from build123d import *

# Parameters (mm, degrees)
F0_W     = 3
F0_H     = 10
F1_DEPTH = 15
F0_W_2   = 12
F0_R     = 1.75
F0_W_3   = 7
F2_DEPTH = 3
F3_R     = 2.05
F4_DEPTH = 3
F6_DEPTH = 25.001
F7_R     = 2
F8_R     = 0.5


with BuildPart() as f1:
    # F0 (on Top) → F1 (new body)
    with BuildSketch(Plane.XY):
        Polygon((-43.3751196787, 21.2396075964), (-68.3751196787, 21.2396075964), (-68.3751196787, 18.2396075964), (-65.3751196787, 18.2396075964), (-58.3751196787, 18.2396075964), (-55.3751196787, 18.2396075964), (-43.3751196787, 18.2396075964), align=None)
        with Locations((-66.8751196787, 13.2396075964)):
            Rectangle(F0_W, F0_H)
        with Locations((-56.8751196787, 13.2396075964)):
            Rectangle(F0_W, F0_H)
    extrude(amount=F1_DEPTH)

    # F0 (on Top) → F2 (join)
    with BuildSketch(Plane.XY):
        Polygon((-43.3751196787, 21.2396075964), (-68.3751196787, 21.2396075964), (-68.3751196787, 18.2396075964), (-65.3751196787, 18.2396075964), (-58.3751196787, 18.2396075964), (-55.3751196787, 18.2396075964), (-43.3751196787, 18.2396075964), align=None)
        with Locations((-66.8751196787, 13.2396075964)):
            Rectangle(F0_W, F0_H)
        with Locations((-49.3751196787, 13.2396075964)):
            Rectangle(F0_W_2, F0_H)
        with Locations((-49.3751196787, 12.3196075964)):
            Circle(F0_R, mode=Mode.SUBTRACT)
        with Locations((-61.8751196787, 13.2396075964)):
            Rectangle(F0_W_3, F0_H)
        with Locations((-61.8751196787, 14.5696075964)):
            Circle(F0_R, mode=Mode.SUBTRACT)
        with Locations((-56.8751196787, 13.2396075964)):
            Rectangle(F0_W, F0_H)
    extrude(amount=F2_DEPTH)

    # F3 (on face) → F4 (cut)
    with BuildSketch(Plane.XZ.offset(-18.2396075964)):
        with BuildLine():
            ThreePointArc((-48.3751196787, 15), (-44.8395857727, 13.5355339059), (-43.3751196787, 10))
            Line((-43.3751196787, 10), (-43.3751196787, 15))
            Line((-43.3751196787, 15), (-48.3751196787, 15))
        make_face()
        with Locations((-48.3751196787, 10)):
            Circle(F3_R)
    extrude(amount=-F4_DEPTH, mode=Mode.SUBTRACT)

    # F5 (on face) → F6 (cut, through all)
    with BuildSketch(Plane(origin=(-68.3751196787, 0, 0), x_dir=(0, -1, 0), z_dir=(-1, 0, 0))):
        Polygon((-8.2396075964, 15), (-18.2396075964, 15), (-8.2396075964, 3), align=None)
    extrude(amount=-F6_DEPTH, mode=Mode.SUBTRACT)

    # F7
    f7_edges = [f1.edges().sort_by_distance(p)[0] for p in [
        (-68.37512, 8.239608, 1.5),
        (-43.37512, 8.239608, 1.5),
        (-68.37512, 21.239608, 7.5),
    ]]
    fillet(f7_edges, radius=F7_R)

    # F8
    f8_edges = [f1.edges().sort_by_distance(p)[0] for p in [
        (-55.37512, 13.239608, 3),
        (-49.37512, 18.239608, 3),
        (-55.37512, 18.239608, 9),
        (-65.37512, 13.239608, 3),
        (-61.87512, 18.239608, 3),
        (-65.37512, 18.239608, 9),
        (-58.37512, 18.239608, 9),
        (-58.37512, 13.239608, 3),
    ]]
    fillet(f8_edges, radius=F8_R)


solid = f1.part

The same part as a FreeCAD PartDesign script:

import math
import FreeCAD as App
import Part
import Sketcher


def edges_at(feature, points):
    """Names of the edges that pass closest to the given points."""
    edges = feature.Shape.Edges
    near = lambda p: min(range(len(edges)), key=lambda i: edges[i].distToShape(Part.Vertex(*p))[0])
    return sorted({f"Edge{near(p) + 1}" for p in points})

doc = App.newDocument("Part")
body = doc.addObject("PartDesign::Body", "Body")

# Sketch on XY plane
sketch1 = body.newObject("Sketcher::SketchObject", "Sketch")
sketch1.AttachmentSupport = (doc.getObject("XY_Plane"), [""])
sketch1.MapMode = "FlatFace"
sketch1.addGeometry([
    Part.LineSegment(App.Vector(-43.4, 21.2, 0), App.Vector(-68.4, 21.2, 0)),  # 0
    Part.LineSegment(App.Vector(-68.4, 21.2, 0), App.Vector(-68.4, 8.2, 0)),  # 1
    Part.LineSegment(App.Vector(-68.4, 8.2, 0), App.Vector(-65.4, 8.2, 0)),  # 2
    Part.LineSegment(App.Vector(-65.4, 8.2, 0), App.Vector(-65.4, 18.2, 0)),  # 3
    Part.LineSegment(App.Vector(-65.4, 18.2, 0), App.Vector(-58.4, 18.2, 0)),  # 4
    Part.LineSegment(App.Vector(-58.4, 18.2, 0), App.Vector(-58.4, 8.2, 0)),  # 5
    Part.LineSegment(App.Vector(-58.4, 8.2, 0), App.Vector(-55.4, 8.2, 0)),  # 6
    Part.LineSegment(App.Vector(-55.4, 8.2, 0), App.Vector(-55.4, 18.2, 0)),  # 7
    Part.LineSegment(App.Vector(-55.4, 18.2, 0), App.Vector(-43.4, 18.2, 0)),  # 8
    Part.LineSegment(App.Vector(-43.4, 18.2, 0), App.Vector(-43.4, 21.2, 0)),  # 9
], False)
sketch1.addConstraint([
    Sketcher.Constraint("Coincident", 0, 2, 1, 1),
    Sketcher.Constraint("Coincident", 1, 2, 2, 1),
    Sketcher.Constraint("Coincident", 2, 2, 3, 1),
    Sketcher.Constraint("Coincident", 3, 2, 4, 1),
    Sketcher.Constraint("Coincident", 4, 2, 5, 1),
    Sketcher.Constraint("Coincident", 5, 2, 6, 1),
    Sketcher.Constraint("Coincident", 6, 2, 7, 1),
    Sketcher.Constraint("Coincident", 7, 2, 8, 1),
    Sketcher.Constraint("Coincident", 8, 2, 9, 1),
    Sketcher.Constraint("Coincident", 9, 2, 0, 1),
    Sketcher.Constraint("Horizontal", 0),
    Sketcher.Constraint("Vertical", 1),
    Sketcher.Constraint("Horizontal", 2),
    Sketcher.Constraint("Vertical", 3),
    Sketcher.Constraint("Horizontal", 4),
    Sketcher.Constraint("Vertical", 5),
    Sketcher.Constraint("Horizontal", 6),
    Sketcher.Constraint("Vertical", 7),
    Sketcher.Constraint("Horizontal", 8),
    Sketcher.Constraint("Vertical", 9),
    Sketcher.Constraint("Horizontal", 2, 2, 5, 2),
    Sketcher.Constraint("Horizontal", 4, 2, 7, 2),
    Sketcher.Constraint("Equal", 2, 6),
    Sketcher.Constraint("Equal", 6, 9),
    Sketcher.Constraint("DistanceX", 0, 2, 0, 1, 25.0),
    Sketcher.Constraint("DistanceX", 2, 1, 2, 2, 3.0),
    Sketcher.Constraint("DistanceX", 4, 1, 4, 2, 7.0),
    Sketcher.Constraint("DistanceY", 1, 2, 1, 1, 13.0),
    Sketcher.Constraint("DistanceX", 0, 2, -1, 1, 68.37512),
    Sketcher.Constraint("DistanceY", -1, 1, 0, 2, 21.239608),
])
pad1 = body.newObject("PartDesign::Pad", "Pad")
pad1.Profile = sketch1
pad1.Length = 15

# Sketch on XY plane
sketch2 = body.newObject("Sketcher::SketchObject", "Sketch001")
sketch2.AttachmentSupport = (doc.getObject("XY_Plane"), [""])
sketch2.MapMode = "FlatFace"
sketch2.addGeometry([
    Part.LineSegment(App.Vector(-43.4, 21.2, 0), App.Vector(-68.4, 21.2, 0)),  # 0
    Part.LineSegment(App.Vector(-68.4, 21.2, 0), App.Vector(-68.4, 8.2, 0)),  # 1
    Part.LineSegment(App.Vector(-68.4, 8.2, 0), App.Vector(-43.4, 8.2, 0)),  # 2
    Part.LineSegment(App.Vector(-43.4, 8.2, 0), App.Vector(-43.4, 21.2, 0)),  # 3
    Part.Circle(App.Vector(-49.4, 12.3, 0), App.Vector(0, 0, 1), 1.8),  # 4
    Part.Circle(App.Vector(-61.9, 14.6, 0), App.Vector(0, 0, 1), 1.8),  # 5
], False)
sketch2.addConstraint([
    Sketcher.Constraint("Coincident", 0, 2, 1, 1),
    Sketcher.Constraint("Coincident", 1, 2, 2, 1),
    Sketcher.Constraint("Coincident", 2, 2, 3, 1),
    Sketcher.Constraint("Coincident", 3, 2, 0, 1),
    Sketcher.Constraint("Horizontal", 0),
    Sketcher.Constraint("Vertical", 1),
    Sketcher.Constraint("Horizontal", 2),
    Sketcher.Constraint("Vertical", 3),
    Sketcher.Constraint("Equal", 4, 5),
    Sketcher.Constraint("Diameter", 4, 3.5),
    Sketcher.Constraint("DistanceX", 0, 2, 0, 1, 25.0),
    Sketcher.Constraint("DistanceY", 1, 2, 1, 1, 13.0),
    Sketcher.Constraint("DistanceX", 0, 2, 4, 3, 19.0),
    Sketcher.Constraint("DistanceX", 5, 3, 4, 3, 12.5),
    Sketcher.Constraint("DistanceY", 4, 3, 5, 3, 2.25),
    Sketcher.Constraint("DistanceY", 5, 3, 0, 2, 6.67),
    Sketcher.Constraint("DistanceX", 4, 3, -1, 1, 49.37512),
    Sketcher.Constraint("DistanceY", -1, 1, 4, 3, 12.319608),
])
pad2 = body.newObject("PartDesign::Pad", "Pad001")
pad2.Profile = sketch2
pad2.Length = 3

# Sketch on XZ plane
sketch3 = body.newObject("Sketcher::SketchObject", "Sketch002")
sketch3.AttachmentSupport = (doc.getObject("XZ_Plane"), [""])
sketch3.MapMode = "FlatFace"
sketch3.AttachmentOffset = App.Placement(App.Vector(0, 0, -18.239608), App.Rotation())
sketch3.addGeometry([
    Part.ArcOfCircle(Part.Circle(App.Vector(-48.4, 10, 0), App.Vector(0, 0, 1), 5), math.radians(0), math.radians(90)),
    Part.LineSegment(App.Vector(-43.4, 10, 0), App.Vector(-43.4, 15, 0)),
    Part.LineSegment(App.Vector(-43.4, 15, 0), App.Vector(-48.4, 15, 0)),
    Part.Circle(App.Vector(-48.4, 10, 0), App.Vector(0, 0, 1), 2),
], False)
sketch3.addConstraint([
    Sketcher.Constraint("Tangent", 0, 1, 1, 1),
    Sketcher.Constraint("Coincident", 1, 2, 2, 1),
    Sketcher.Constraint("Tangent", 2, 2, 0, 2),
    Sketcher.Constraint("Vertical", 1),
    Sketcher.Constraint("Horizontal", 2),
    Sketcher.Constraint("Coincident", 3, 3, 0, 3),
    Sketcher.Constraint("Radius", 0, 5.0),
    Sketcher.Constraint("Diameter", 3, 4.1),
    Sketcher.Constraint("DistanceY", -1, 1, 0, 3, 10.0),
    Sketcher.Constraint("DistanceX", 0, 3, -1, 1, 48.37512),
])
pocket1 = body.newObject("PartDesign::Pocket", "Pocket")
pocket1.Profile = sketch3
pocket1.Length = 3

# Sketch on YZ plane
sketch4 = body.newObject("Sketcher::SketchObject", "Sketch003")
sketch4.AttachmentSupport = (doc.getObject("YZ_Plane"), [""])
sketch4.MapMode = "FlatFace"
sketch4.AttachmentOffset = App.Placement(App.Vector(0, 0, -68.37512), App.Rotation())
sketch4.addGeometry([
    Part.LineSegment(App.Vector(8, 15, 0), App.Vector(18, 15, 0)),
    Part.LineSegment(App.Vector(18, 15, 0), App.Vector(8, 3, 0)),
    Part.LineSegment(App.Vector(8, 3, 0), App.Vector(8, 15, 0)),
], False)
sketch4.addConstraint([
    Sketcher.Constraint("Coincident", 0, 2, 1, 1),
    Sketcher.Constraint("Coincident", 1, 2, 2, 1),
    Sketcher.Constraint("Coincident", 2, 2, 0, 1),
    Sketcher.Constraint("Horizontal", 0),
    Sketcher.Constraint("Vertical", 2),
    Sketcher.Constraint("DistanceX", 0, 1, 0, 2, 10.0),
    Sketcher.Constraint("DistanceY", 2, 1, 2, 2, 12.0),
    Sketcher.Constraint("DistanceY", -1, 1, 0, 2, 15.0),
    Sketcher.Constraint("DistanceX", -1, 1, 0, 2, 18.239608),
])
pocket2 = body.newObject("PartDesign::Pocket", "Pocket001")
pocket2.Profile = sketch4
pocket2.Type = "ThroughAll"
pocket2.Reversed = True
doc.recompute()

fillet = body.newObject("PartDesign::Fillet", "Fillet")
fillet.Base = (pocket2, edges_at(pocket2, [(-68.375, 8.24, 1.5), (-43.375, 8.24, 1.5), (-68.375, 21.24, 7.5)]))
fillet.Radius = 2
doc.recompute()

fillet2 = body.newObject("PartDesign::Fillet", "Fillet001")
fillet2.Base = (fillet, edges_at(fillet, [
    (-55.375, 13.24, 3),
    (-49.375, 18.24, 3),
    (-55.375, 18.24, 9),
    (-65.375, 13.24, 3),
    (-61.875, 18.24, 3),
    (-65.375, 18.24, 9),
    (-58.375, 18.24, 9),
    (-58.375, 13.24, 3),
]))
fillet2.Radius = 0.5

doc.recompute()
